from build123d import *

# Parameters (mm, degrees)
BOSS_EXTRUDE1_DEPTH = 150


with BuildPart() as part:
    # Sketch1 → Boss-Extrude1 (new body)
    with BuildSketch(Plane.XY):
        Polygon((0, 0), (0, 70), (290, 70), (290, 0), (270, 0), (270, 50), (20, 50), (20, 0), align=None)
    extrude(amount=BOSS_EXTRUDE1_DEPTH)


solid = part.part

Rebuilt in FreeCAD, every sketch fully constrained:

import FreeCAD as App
import Part
import Sketcher
from FreeCAD import Vector


def add_polygon(sketch, points):
    """Adds a closed chain of lines whose ends are joined by coincident constraints."""
    first, n = sketch.GeometryCount, len(points)
    for a, b in zip(points, points[1:] + points[:1]):
        sketch.addGeometry(Part.LineSegment(App.Vector(*a, 0), App.Vector(*b, 0)), False)
    for i in range(n):
        sketch.addConstraint(Sketcher.Constraint("Coincident", first + i, 2, first + (i + 1) % n, 1))

doc = App.newDocument("Part")
params = doc.addObject("Spreadsheet::Sheet", "Params")
for row, (alias, value) in enumerate([
    ("sketch1_width", "20 mm"),
    ("sketch1_width2", "250 mm"),
    ("sketch1_height", "70 mm"),
    ("sketch1_height2", "50 mm"),
    ("pad1_length", "150 mm"),
], start=1):
    params.set(f"A{row}", alias)
    params.set(f"B{row}", "=" + value)
    params.setAlias(f"B{row}", alias)

body = doc.addObject("PartDesign::Body", "Body")

sketch1 = body.newObject("Sketcher::SketchObject", "Sketch")
sketch1.AttachmentSupport = (doc.getObject("XY_Plane"), [""])
sketch1.MapMode = "FlatFace"
add_polygon(sketch1, [(0, 70), (0, 0), (20, 0), (20, 50), (270, 50), (270, 0), (290, 0), (290, 70)])
sketch1.addConstraint(Sketcher.Constraint("Vertical", 0))
sketch1.addConstraint(Sketcher.Constraint("Horizontal", 1))
sketch1.addConstraint(Sketcher.Constraint("Vertical", 2))
sketch1.addConstraint(Sketcher.Constraint("Horizontal", 3))
sketch1.addConstraint(Sketcher.Constraint("Vertical", 4))
sketch1.addConstraint(Sketcher.Constraint("Horizontal", 5))
sketch1.addConstraint(Sketcher.Constraint("Vertical", 6))
sketch1.addConstraint(Sketcher.Constraint("Horizontal", 7))
sketch1.addConstraint(Sketcher.Constraint("Coincident", 0, 2, -1, 1))
sketch1.addConstraint(Sketcher.Constraint("PointOnObject", 4, 2, -1))
sketch1.addConstraint(Sketcher.Constraint("Equal", 1, 5))
sketch1.addConstraint(Sketcher.Constraint("DistanceX", 1, 1, 1, 2, 20.0))
sketch1.addConstraint(Sketcher.Constraint("DistanceX", 3, 1, 3, 2, 250.0))
sketch1.addConstraint(Sketcher.Constraint("DistanceY", 0, 2, 0, 1, 70.0))
sketch1.addConstraint(Sketcher.Constraint("DistanceY", 2, 1, 2, 2, 50.0))
sketch1.setExpression("Constraints[19]", "Params.sketch1_width")
sketch1.setExpression("Constraints[20]", "Params.sketch1_width2")
sketch1.setExpression("Constraints[21]", "Params.sketch1_height")
sketch1.setExpression("Constraints[22]", "Params.sketch1_height2")
pad1 = body.newObject("PartDesign::Pad", "Pad")
pad1.Profile = sketch1
pad1.setExpression("Length", "Params.pad1_length")

doc.recompute()
